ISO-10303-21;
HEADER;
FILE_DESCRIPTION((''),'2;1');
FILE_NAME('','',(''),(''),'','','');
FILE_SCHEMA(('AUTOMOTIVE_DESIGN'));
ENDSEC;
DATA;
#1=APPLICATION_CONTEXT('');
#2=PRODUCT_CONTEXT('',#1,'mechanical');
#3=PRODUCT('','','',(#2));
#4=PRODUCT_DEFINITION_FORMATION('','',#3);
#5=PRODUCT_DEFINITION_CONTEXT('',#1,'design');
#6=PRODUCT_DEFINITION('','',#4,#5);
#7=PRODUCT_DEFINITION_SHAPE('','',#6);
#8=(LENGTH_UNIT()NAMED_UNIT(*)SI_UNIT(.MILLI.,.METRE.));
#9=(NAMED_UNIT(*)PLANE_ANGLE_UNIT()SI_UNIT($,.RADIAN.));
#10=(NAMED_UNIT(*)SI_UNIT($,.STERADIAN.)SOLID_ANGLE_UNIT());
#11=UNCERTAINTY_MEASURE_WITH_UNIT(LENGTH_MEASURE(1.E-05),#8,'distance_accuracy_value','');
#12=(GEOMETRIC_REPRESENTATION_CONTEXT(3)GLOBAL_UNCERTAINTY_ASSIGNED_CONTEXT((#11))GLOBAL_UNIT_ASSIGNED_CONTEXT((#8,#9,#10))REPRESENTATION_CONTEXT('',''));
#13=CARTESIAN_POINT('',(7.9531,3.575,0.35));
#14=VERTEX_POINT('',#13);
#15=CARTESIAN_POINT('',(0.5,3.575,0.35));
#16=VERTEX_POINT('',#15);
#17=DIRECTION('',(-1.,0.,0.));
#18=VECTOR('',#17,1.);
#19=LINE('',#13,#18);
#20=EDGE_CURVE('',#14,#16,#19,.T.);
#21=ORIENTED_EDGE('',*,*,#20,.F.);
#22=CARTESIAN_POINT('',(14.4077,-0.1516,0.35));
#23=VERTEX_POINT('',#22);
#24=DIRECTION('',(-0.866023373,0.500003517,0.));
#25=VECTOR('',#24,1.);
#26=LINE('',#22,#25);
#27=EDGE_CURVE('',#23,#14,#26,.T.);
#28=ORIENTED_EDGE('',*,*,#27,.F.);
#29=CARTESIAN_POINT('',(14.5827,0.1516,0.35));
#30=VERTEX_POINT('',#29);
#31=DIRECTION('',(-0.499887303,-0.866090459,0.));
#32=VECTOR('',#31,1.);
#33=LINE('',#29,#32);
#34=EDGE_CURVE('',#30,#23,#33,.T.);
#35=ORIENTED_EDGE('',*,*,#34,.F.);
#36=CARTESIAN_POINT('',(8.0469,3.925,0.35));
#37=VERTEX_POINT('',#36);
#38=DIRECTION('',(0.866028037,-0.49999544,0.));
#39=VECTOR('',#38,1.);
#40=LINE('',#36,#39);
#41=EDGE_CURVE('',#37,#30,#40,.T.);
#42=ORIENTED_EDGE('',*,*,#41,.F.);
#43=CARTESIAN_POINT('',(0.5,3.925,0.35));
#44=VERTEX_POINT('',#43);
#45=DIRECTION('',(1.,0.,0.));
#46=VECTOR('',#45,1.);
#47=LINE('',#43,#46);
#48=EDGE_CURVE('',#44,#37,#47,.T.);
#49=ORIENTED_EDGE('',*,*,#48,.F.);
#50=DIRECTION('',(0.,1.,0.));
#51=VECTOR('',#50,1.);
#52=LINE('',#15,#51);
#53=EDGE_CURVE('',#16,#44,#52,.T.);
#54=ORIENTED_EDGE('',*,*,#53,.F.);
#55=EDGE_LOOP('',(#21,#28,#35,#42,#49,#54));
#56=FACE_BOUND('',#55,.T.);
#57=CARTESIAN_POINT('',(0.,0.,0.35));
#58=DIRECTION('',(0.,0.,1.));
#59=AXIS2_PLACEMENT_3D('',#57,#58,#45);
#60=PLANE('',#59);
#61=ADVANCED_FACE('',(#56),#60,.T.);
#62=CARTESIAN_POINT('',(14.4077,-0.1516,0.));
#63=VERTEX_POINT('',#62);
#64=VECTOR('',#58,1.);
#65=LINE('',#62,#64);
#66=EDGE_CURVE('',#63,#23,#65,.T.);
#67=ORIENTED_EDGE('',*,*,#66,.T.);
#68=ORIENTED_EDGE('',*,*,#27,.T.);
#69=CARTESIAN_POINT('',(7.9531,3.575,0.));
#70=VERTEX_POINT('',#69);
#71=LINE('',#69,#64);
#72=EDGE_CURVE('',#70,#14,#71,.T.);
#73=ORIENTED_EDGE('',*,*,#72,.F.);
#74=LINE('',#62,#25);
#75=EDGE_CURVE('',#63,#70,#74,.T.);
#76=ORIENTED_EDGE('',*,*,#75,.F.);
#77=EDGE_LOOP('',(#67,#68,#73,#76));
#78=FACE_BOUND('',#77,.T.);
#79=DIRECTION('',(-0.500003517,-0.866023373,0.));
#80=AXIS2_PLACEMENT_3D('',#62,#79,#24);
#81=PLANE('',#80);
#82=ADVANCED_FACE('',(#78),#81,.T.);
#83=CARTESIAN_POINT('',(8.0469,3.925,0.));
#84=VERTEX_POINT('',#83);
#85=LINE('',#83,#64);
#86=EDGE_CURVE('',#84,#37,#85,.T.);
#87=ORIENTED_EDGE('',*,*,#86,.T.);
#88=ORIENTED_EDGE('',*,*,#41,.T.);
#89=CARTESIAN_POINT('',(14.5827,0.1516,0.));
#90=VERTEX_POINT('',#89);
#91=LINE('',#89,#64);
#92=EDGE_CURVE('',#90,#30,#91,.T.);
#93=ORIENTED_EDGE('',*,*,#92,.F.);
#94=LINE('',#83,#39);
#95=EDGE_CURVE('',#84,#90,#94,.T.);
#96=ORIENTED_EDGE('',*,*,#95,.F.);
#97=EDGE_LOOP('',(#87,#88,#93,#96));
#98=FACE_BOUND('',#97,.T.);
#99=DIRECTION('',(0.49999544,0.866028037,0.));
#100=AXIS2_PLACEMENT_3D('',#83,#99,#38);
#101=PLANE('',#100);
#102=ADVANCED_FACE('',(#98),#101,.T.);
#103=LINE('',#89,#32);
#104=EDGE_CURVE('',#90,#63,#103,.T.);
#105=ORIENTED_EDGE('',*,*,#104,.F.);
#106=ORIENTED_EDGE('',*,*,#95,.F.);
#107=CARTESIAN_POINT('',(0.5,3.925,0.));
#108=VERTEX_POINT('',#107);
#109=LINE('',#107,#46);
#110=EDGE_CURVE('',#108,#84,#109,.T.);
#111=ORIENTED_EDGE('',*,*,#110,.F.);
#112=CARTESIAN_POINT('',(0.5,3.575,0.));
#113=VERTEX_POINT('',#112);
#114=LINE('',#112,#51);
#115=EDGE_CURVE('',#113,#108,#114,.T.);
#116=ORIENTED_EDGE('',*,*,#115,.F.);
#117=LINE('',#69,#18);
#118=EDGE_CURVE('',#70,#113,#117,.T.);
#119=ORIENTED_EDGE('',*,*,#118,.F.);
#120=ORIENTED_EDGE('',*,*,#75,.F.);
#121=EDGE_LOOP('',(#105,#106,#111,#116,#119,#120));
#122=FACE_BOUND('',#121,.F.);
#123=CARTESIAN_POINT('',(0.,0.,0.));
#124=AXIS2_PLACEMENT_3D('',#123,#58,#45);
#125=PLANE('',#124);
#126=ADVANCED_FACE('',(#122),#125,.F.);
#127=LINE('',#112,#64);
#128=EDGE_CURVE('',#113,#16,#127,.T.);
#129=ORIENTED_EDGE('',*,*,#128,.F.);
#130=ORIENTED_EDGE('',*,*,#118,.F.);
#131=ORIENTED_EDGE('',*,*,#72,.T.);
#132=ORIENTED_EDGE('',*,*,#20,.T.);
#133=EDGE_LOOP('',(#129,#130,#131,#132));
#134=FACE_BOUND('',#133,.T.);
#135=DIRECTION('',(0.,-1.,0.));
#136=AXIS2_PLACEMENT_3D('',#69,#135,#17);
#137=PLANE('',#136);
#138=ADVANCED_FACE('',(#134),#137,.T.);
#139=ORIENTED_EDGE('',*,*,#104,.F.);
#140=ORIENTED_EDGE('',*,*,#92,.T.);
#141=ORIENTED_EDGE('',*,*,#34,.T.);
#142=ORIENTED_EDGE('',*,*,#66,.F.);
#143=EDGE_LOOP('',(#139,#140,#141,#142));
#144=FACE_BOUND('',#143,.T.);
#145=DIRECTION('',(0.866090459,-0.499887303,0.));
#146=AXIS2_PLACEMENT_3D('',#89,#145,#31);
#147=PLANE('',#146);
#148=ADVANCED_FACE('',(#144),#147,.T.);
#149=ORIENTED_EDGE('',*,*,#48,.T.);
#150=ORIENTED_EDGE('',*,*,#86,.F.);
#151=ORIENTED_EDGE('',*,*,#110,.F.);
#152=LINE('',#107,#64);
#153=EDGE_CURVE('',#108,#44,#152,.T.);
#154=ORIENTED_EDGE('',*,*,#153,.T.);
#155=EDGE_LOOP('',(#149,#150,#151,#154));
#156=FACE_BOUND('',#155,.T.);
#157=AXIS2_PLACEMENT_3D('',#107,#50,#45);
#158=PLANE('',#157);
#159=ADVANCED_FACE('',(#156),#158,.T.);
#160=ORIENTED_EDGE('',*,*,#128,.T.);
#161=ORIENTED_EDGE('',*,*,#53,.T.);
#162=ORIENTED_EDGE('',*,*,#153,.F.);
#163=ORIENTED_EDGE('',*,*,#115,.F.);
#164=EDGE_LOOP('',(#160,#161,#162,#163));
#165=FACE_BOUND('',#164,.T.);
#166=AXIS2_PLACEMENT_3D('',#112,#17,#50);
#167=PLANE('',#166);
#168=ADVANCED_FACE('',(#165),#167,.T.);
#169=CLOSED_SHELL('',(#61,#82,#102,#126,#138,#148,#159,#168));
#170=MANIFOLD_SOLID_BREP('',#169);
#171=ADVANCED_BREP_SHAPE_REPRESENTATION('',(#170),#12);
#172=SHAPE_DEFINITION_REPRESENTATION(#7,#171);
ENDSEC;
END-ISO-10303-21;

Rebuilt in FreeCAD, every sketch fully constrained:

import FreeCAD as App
import Part
import Sketcher
Q = App.Units.Quantity

doc = App.newDocument("Part")
body = doc.addObject("PartDesign::Body", "Body")

# Sketch on XY plane
sketch1 = body.newObject("Sketcher::SketchObject", "Sketch")
sketch1.AttachmentSupport = (doc.getObject("XY_Plane"), [""])
sketch1.MapMode = "FlatFace"
sketch1.addGeometry(Part.LineSegment(App.Vector(8.05, 3.92, 0), App.Vector(0.5, 3.92, 0)), False)
sketch1.addGeometry(Part.LineSegment(App.Vector(0.5, 3.92, 0), App.Vector(0.5, 3.58, 0)), False)
sketch1.addGeometry(Part.LineSegment(App.Vector(0.5, 3.58, 0), App.Vector(7.95, 3.58, 0)), False)
sketch1.addGeometry(Part.LineSegment(App.Vector(7.95, 3.58, 0), App.Vector(14.41, -0.15, 0)), False)
sketch1.addGeometry(Part.LineSegment(App.Vector(14.41, -0.15, 0), App.Vector(14.58, 0.15, 0)), False)
sketch1.addGeometry(Part.LineSegment(App.Vector(14.58, 0.15, 0), App.Vector(8.05, 3.92, 0)), False)
sketch1.addConstraint(Sketcher.Constraint("Coincident", 0, 2, 1, 1))
sketch1.addConstraint(Sketcher.Constraint("Coincident", 1, 2, 2, 1))
sketch1.addConstraint(Sketcher.Constraint("Coincident", 2, 2, 3, 1))
sketch1.addConstraint(Sketcher.Constraint("Coincident", 3, 2, 4, 1))
sketch1.addConstraint(Sketcher.Constraint("Coincident", 4, 2, 5, 1))
sketch1.addConstraint(Sketcher.Constraint("Coincident", 5, 2, 0, 1))
sketch1.addConstraint(Sketcher.Constraint("Horizontal", 0))
sketch1.addConstraint(Sketcher.Constraint("Vertical", 1))
sketch1.addConstraint(Sketcher.Constraint("Horizontal", 2))
sketch1.addConstraint(Sketcher.Constraint("Perpendicular", 3, 4))
sketch1.addConstraint(Sketcher.Constraint("Perpendicular", 4, 5))
sketch1.addConstraint(Sketcher.Constraint("Angle", 5, Q("150.0003 deg")))
sketch1.addConstraint(Sketcher.Constraint("DistanceY", 1, 2, 1, 1, 0.35))
sketch1.addConstraint(Sketcher.Constraint("DistanceX", -1, 1, 0, 2, 0.5))
sketch1.addConstraint(Sketcher.Constraint("Distance", 4, 0.35))
sketch1.addConstraint(Sketcher.Constraint("DistanceX", 0, 2, 0, 1, 7.547))
sketch1.addConstraint(Sketcher.Constraint("DistanceY", -1, 1, 0, 2, 3.925))
sketch1.addConstraint(Sketcher.Constraint("Distance", 3, 7.4531))
pad1 = body.newObject("PartDesign::Pad", "Pad")
pad1.Profile = sketch1
pad1.Length = 0.35

doc.recompute()
